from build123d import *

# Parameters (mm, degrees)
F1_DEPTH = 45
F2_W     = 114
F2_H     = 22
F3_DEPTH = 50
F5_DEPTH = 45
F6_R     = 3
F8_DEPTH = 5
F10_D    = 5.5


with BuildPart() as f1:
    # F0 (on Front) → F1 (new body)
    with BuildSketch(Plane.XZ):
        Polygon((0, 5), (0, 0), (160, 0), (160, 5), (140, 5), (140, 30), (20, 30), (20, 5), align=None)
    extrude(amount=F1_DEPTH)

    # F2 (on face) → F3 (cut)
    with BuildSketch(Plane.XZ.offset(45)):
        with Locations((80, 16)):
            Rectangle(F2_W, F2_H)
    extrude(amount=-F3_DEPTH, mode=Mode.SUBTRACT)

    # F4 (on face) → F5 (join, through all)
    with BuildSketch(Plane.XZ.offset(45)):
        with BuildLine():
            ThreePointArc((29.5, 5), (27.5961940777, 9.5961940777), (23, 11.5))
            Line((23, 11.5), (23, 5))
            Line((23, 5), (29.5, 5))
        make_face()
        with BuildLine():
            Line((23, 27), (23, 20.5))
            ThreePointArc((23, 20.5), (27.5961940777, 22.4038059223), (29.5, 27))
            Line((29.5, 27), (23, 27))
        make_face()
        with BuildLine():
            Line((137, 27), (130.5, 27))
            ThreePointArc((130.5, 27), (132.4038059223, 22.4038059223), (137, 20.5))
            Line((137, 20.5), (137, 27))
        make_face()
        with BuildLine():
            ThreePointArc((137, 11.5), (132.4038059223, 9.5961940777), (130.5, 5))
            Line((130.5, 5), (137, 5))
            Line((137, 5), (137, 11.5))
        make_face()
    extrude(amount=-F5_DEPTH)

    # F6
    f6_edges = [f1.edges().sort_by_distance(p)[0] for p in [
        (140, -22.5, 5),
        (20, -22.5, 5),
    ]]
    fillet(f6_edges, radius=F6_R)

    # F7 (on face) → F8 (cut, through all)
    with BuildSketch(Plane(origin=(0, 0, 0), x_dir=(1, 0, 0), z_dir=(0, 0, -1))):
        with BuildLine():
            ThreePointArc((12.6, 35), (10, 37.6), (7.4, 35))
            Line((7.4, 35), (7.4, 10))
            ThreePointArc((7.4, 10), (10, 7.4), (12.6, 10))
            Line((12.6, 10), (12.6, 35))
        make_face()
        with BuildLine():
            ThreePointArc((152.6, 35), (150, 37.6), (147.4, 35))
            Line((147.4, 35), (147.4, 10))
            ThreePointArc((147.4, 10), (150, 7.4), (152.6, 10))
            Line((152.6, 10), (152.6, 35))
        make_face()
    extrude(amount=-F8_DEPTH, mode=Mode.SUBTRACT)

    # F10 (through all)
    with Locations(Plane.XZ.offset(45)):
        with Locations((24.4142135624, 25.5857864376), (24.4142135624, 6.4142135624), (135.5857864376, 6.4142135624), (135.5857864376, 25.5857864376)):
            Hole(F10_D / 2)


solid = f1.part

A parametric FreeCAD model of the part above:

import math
import FreeCAD as App
import Part
import Sketcher


def edges_at(feature, points):
    """Names of the edges that pass closest to the given points."""
    edges = feature.Shape.Edges
    near = lambda p: min(range(len(edges)), key=lambda i: edges[i].distToShape(Part.Vertex(*p))[0])
    return sorted({f"Edge{near(p) + 1}" for p in points})


def add_polygon(sketch, points):
    """Adds a closed chain of lines whose ends are joined by coincident constraints."""
    first, n = sketch.GeometryCount, len(points)
    for a, b in zip(points, points[1:] + points[:1]):
        sketch.addGeometry(Part.LineSegment(App.Vector(*a, 0), App.Vector(*b, 0)), False)
    for i in range(n):
        sketch.addConstraint(Sketcher.Constraint("Coincident", first + i, 2, first + (i + 1) % n, 1))

doc = App.newDocument("Part")
body = doc.addObject("PartDesign::Body", "Body")

# Sketch on XZ plane
sketch1 = doc.addObject("Sketcher::SketchObject", "Sketch")
body.addObject(sketch1)
sketch1.AttachmentSupport = (doc.XZ_Plane, [""])
sketch1.MapMode = "FlatFace"
add_polygon(sketch1, [(0, 5), (0, 0), (160, 0), (160, 5), (140, 5), (140, 30), (20, 30), (20, 5)])  # lines 0-7
sketch1.addConstraint(Sketcher.Constraint("Vertical", 0))
sketch1.addConstraint(Sketcher.Constraint("Horizontal", 1))
sketch1.addConstraint(Sketcher.Constraint("Vertical", 2))
sketch1.addConstraint(Sketcher.Constraint("Horizontal", 3))
sketch1.addConstraint(Sketcher.Constraint("Vertical", 4))
sketch1.addConstraint(Sketcher.Constraint("Horizontal", 5))
sketch1.addConstraint(Sketcher.Constraint("Vertical", 6))
sketch1.addConstraint(Sketcher.Constraint("Horizontal", 7))
sketch1.addConstraint(Sketcher.Constraint("Coincident", 0, 2, -1, 1))
sketch1.addConstraint(Sketcher.Constraint("Horizontal", 3, 2, 6, 2))
sketch1.addConstraint(Sketcher.Constraint("Equal", 3, 7))
sketch1.addConstraint(Sketcher.Constraint("DistanceX", 1, 1, 1, 2, 160.0))
sketch1.addConstraint(Sketcher.Constraint("DistanceX", 3, 2, 3, 1, 20.0))
sketch1.addConstraint(Sketcher.Constraint("DistanceY", 0, 2, 0, 1, 5.0))
sketch1.addConstraint(Sketcher.Constraint("DistanceY", 4, 1, 4, 2, 25.0))
pad1 = doc.addObject("PartDesign::Pad", "Pad")
body.addObject(pad1)
pad1.Profile = sketch1
pad1.Length = 45

# Sketch on XZ plane
sketch2 = doc.addObject("Sketcher::SketchObject", "Sketch001")
body.addObject(sketch2)
sketch2.AttachmentSupport = (doc.XZ_Plane, [""])
sketch2.MapMode = "FlatFace"
sketch2.AttachmentOffset = App.Placement(App.Vector(0, 0, 45), App.Rotation())
add_polygon(sketch2, [(23, 27), (23, 5), (137, 5), (137, 27)])  # lines 0-3
sketch2.addConstraint(Sketcher.Constraint("Vertical", 0))
sketch2.addConstraint(Sketcher.Constraint("Horizontal", 1))
sketch2.addConstraint(Sketcher.Constraint("Vertical", 2))
sketch2.addConstraint(Sketcher.Constraint("Horizontal", 3))
sketch2.addConstraint(Sketcher.Constraint("DistanceX", 1, 1, 1, 2, 114.0))
sketch2.addConstraint(Sketcher.Constraint("DistanceY", 0, 2, 0, 1, 22.0))
sketch2.addConstraint(Sketcher.Constraint("DistanceX", -1, 1, 0, 2, 23.0))
sketch2.addConstraint(Sketcher.Constraint("DistanceY", -1, 1, 0, 2, 5.0))
pocket1 = doc.addObject("PartDesign::Pocket", "Pocket")
body.addObject(pocket1)
pocket1.Profile = sketch2
pocket1.Length = 50

# Sketch on XZ plane
sketch3 = doc.addObject("Sketcher::SketchObject", "Sketch002")
body.addObject(sketch3)
sketch3.AttachmentSupport = (doc.XZ_Plane, [""])
sketch3.MapMode = "FlatFace"
sketch3.AttachmentOffset = App.Placement(App.Vector(0, 0, 45), App.Rotation())
sketch3.addGeometry(Part.ArcOfCircle(Part.Circle(App.Vector(23, 5, 0), App.Vector(0, 0, 1), 6), math.radians(0), math.radians(90)), False)
sketch3.addGeometry(Part.LineSegment(App.Vector(23, 12, 0), App.Vector(23, 5, 0)), False)
sketch3.addGeometry(Part.LineSegment(App.Vector(23, 5, 0), App.Vector(30, 5, 0)), False)
sketch3.addGeometry(Part.LineSegment(App.Vector(23, 27, 0), App.Vector(23, 20, 0)), False)
sketch3.addGeometry(Part.ArcOfCircle(Part.Circle(App.Vector(23, 27, 0), App.Vector(0, 0, 1), 6), math.radians(-90), math.radians(0)), False)
sketch3.addGeometry(Part.LineSegment(App.Vector(30, 27, 0), App.Vector(23, 27, 0)), False)
sketch3.addGeometry(Part.LineSegment(App.Vector(137, 27, 0), App.Vector(130, 27, 0)), False)
sketch3.addGeometry(Part.ArcOfCircle(Part.Circle(App.Vector(137, 27, 0), App.Vector(0, 0, 1), 6), math.radians(180), math.radians(270)), False)
sketch3.addGeometry(Part.LineSegment(App.Vector(137, 20, 0), App.Vector(137, 27, 0)), False)
sketch3.addGeometry(Part.ArcOfCircle(Part.Circle(App.Vector(137, 5, 0), App.Vector(0, 0, 1), 6), math.radians(90), math.radians(180)), False)
sketch3.addGeometry(Part.LineSegment(App.Vector(130, 5, 0), App.Vector(137, 5, 0)), False)
sketch3.addGeometry(Part.LineSegment(App.Vector(137, 5, 0), App.Vector(137, 12, 0)), False)
sketch3.addConstraint(Sketcher.Constraint("Coincident", 0, 2, 1, 1))
sketch3.addConstraint(Sketcher.Constraint("Coincident", 1, 2, 2, 1))
sketch3.addConstraint(Sketcher.Constraint("Coincident", 2, 2, 0, 1))
sketch3.addConstraint(Sketcher.Constraint("Coincident", 3, 2, 4, 1))
sketch3.addConstraint(Sketcher.Constraint("Coincident", 4, 2, 5, 1))
sketch3.addConstraint(Sketcher.Constraint("Coincident", 5, 2, 3, 1))
sketch3.addConstraint(Sketcher.Constraint("Coincident", 6, 2, 7, 1))
sketch3.addConstraint(Sketcher.Constraint("Coincident", 7, 2, 8, 1))
sketch3.addConstraint(Sketcher.Constraint("Coincident", 8, 2, 6, 1))
sketch3.addConstraint(Sketcher.Constraint("Coincident", 9, 2, 10, 1))
sketch3.addConstraint(Sketcher.Constraint("Coincident", 10, 2, 11, 1))
sketch3.addConstraint(Sketcher.Constraint("Coincident", 11, 2, 9, 1))
sketch3.addConstraint(Sketcher.Constraint("Vertical", 1))
sketch3.addConstraint(Sketcher.Constraint("Horizontal", 2))
sketch3.addConstraint(Sketcher.Constraint("Vertical", 3))
sketch3.addConstraint(Sketcher.Constraint("Horizontal", 5))
sketch3.addConstraint(Sketcher.Constraint("Horizontal", 6))
sketch3.addConstraint(Sketcher.Constraint("Vertical", 8))
sketch3.addConstraint(Sketcher.Constraint("Horizontal", 10))
sketch3.addConstraint(Sketcher.Constraint("Vertical", 11))
sketch3.addConstraint(Sketcher.Constraint("Coincident", 1, 2, 0, 3))
sketch3.addConstraint(Sketcher.Constraint("Coincident", 5, 2, 4, 3))
sketch3.addConstraint(Sketcher.Constraint("Coincident", 8, 2, 7, 3))
sketch3.addConstraint(Sketcher.Constraint("Coincident", 10, 2, 9, 3))
sketch3.addConstraint(Sketcher.Constraint("Equal", 0, 4))
sketch3.addConstraint(Sketcher.Constraint("Equal", 4, 7))
sketch3.addConstraint(Sketcher.Constraint("Equal", 7, 9))
sketch3.addConstraint(Sketcher.Constraint("Horizontal", 4, 3, 7, 3))
sketch3.addConstraint(Sketcher.Constraint("Horizontal", 0, 3, 9, 3))
sketch3.addConstraint(Sketcher.Constraint("Vertical", 0, 3, 4, 3))
sketch3.addConstraint(Sketcher.Constraint("Vertical", 7, 3, 9, 3))
sketch3.addConstraint(Sketcher.Constraint("Radius", 0, 6.5))
sketch3.addConstraint(Sketcher.Constraint("DistanceX", -1, 1, 0, 3, 23.0))
sketch3.addConstraint(Sketcher.Constraint("DistanceY", -1, 1, 0, 3, 5.0))
sketch3.addConstraint(Sketcher.Constraint("DistanceY", -1, 1, 4, 3, 27.0))
sketch3.addConstraint(Sketcher.Constraint("DistanceX", -1, 1, 7, 3, 137.0))
pad2 = doc.addObject("PartDesign::Pad", "Pad001")
body.addObject(pad2)
pad2.Profile = sketch3
pad2.Length = 45
pad2.Reversed = True
doc.recompute()

fillet = doc.addObject("PartDesign::Fillet", "Fillet")
body.addObject(fillet)
fillet.Base = (pad2, edges_at(pad2, [(140, -22.5, 5), (20, -22.5, 5)]))
fillet.Radius = 3

# Sketch on XY plane
sketch4 = doc.addObject("Sketcher::SketchObject", "Sketch003")
body.addObject(sketch4)
sketch4.AttachmentSupport = (doc.XY_Plane, [""])
sketch4.MapMode = "FlatFace"
sketch4.addGeometry(Part.ArcOfCircle(Part.Circle(App.Vector(10, -35, 0), App.Vector(0, 0, 1), 2.6), math.radians(180), math.radians(360)), False)
sketch4.addGeometry(Part.LineSegment(App.Vector(7.4, -35, 0), App.Vector(7.4, -10, 0)), False)
sketch4.addGeometry(Part.ArcOfCircle(Part.Circle(App.Vector(10, -10, 0), App.Vector(0, 0, 1), 2.6), math.radians(0), math.radians(180)), False)
sketch4.addGeometry(Part.LineSegment(App.Vector(12.6, -10, 0), App.Vector(12.6, -35, 0)), False)
sketch4.addGeometry(Part.ArcOfCircle(Part.Circle(App.Vector(150, -35, 0), App.Vector(0, 0, 1), 2.6), math.radians(180), math.radians(360)), False)
sketch4.addGeometry(Part.LineSegment(App.Vector(147.4, -35, 0), App.Vector(147.4, -10, 0)), False)
sketch4.addGeometry(Part.ArcOfCircle(Part.Circle(App.Vector(150, -10, 0), App.Vector(0, 0, 1), 2.6), math.radians(0), math.radians(180)), False)
sketch4.addGeometry(Part.LineSegment(App.Vector(152.6, -10, 0), App.Vector(152.6, -35, 0)), False)
sketch4.addConstraint(Sketcher.Constraint("Tangent", 0, 1, 1, 1))
sketch4.addConstraint(Sketcher.Constraint("Tangent", 1, 2, 2, 2))
sketch4.addConstraint(Sketcher.Constraint("Tangent", 2, 1, 3, 1))
sketch4.addConstraint(Sketcher.Constraint("Tangent", 3, 2, 0, 2))
sketch4.addConstraint(Sketcher.Constraint("Tangent", 4, 1, 5, 1))
sketch4.addConstraint(Sketcher.Constraint("Tangent", 5, 2, 6, 2))
sketch4.addConstraint(Sketcher.Constraint("Tangent", 6, 1, 7, 1))
sketch4.addConstraint(Sketcher.Constraint("Tangent", 7, 2, 4, 2))
sketch4.addConstraint(Sketcher.Constraint("Vertical", 1))
sketch4.addConstraint(Sketcher.Constraint("Vertical", 3))
sketch4.addConstraint(Sketcher.Constraint("Vertical", 5))
sketch4.addConstraint(Sketcher.Constraint("Vertical", 7))
sketch4.addConstraint(Sketcher.Constraint("Equal", 2, 4))
sketch4.addConstraint(Sketcher.Constraint("Horizontal", 0, 3, 4, 3))
sketch4.addConstraint(Sketcher.Constraint("Horizontal", 2, 3, 6, 3))
sketch4.addConstraint(Sketcher.Constraint("Radius", 0, 2.6))
sketch4.addConstraint(Sketcher.Constraint("DistanceY", 1, 1, 1, 2, 25.0))
sketch4.addConstraint(Sketcher.Constraint("DistanceX", -1, 1, 0, 3, 10.0))
sketch4.addConstraint(Sketcher.Constraint("DistanceY", 0, 3, -1, 1, 35.0))
sketch4.addConstraint(Sketcher.Constraint("DistanceX", -1, 1, 4, 3, 150.0))
pocket2 = doc.addObject("PartDesign::Pocket", "Pocket001")
body.addObject(pocket2)
pocket2.Profile = sketch4
pocket2.Type = "ThroughAll"
pocket2.Reversed = True

# Sketch on XZ plane
sketch5 = doc.addObject("Sketcher::SketchObject", "Sketch004")
body.addObject(sketch5)
sketch5.AttachmentSupport = (doc.XZ_Plane, [""])
sketch5.MapMode = "FlatFace"
sketch5.AttachmentOffset = App.Placement(App.Vector(0, 0, 45), App.Rotation())
sketch5.addGeometry(Part.Circle(App.Vector(24.4, 25.6, 0), App.Vector(0, 0, 1), 2.8), False)
sketch5.addGeometry(Part.Circle(App.Vector(24.4, 6.4, 0), App.Vector(0, 0, 1), 2.8), False)
sketch5.addGeometry(Part.Circle(App.Vector(135.6, 6.4, 0), App.Vector(0, 0, 1), 2.8), False)
sketch5.addGeometry(Part.Circle(App.Vector(135.6, 25.6, 0), App.Vector(0, 0, 1), 2.8), False)
sketch5.addConstraint(Sketcher.Constraint("Equal", 0, 1))
sketch5.addConstraint(Sketcher.Constraint("Equal", 1, 2))
sketch5.addConstraint(Sketcher.Constraint("Equal", 2, 3))
sketch5.addConstraint(Sketcher.Constraint("Horizontal", 1, 3, 2, 3))
sketch5.addConstraint(Sketcher.Constraint("Horizontal", 0, 3, 3, 3))
sketch5.addConstraint(Sketcher.Constraint("Vertical", 0, 3, 1, 3))
sketch5.addConstraint(Sketcher.Constraint("Vertical", 2, 3, 3, 3))
sketch5.addConstraint(Sketcher.Constraint("Diameter", 0, 5.5))
sketch5.addConstraint(Sketcher.Constraint("DistanceX", -1, 1, 0, 3, 24.414214))
sketch5.addConstraint(Sketcher.Constraint("DistanceY", -1, 1, 0, 3, 25.585786))
sketch5.addConstraint(Sketcher.Constraint("DistanceY", -1, 1, 1, 3, 6.414214))
sketch5.addConstraint(Sketcher.Constraint("DistanceX", -1, 1, 2, 3, 135.585786))
doc.recompute()
hole = doc.addObject("PartDesign::Hole", "Hole")
body.addObject(hole)
hole.Profile = sketch5
hole.ThreadType = "None"
hole.Diameter = 5.5
hole.DepthType = "ThroughAll"

doc.recompute()
